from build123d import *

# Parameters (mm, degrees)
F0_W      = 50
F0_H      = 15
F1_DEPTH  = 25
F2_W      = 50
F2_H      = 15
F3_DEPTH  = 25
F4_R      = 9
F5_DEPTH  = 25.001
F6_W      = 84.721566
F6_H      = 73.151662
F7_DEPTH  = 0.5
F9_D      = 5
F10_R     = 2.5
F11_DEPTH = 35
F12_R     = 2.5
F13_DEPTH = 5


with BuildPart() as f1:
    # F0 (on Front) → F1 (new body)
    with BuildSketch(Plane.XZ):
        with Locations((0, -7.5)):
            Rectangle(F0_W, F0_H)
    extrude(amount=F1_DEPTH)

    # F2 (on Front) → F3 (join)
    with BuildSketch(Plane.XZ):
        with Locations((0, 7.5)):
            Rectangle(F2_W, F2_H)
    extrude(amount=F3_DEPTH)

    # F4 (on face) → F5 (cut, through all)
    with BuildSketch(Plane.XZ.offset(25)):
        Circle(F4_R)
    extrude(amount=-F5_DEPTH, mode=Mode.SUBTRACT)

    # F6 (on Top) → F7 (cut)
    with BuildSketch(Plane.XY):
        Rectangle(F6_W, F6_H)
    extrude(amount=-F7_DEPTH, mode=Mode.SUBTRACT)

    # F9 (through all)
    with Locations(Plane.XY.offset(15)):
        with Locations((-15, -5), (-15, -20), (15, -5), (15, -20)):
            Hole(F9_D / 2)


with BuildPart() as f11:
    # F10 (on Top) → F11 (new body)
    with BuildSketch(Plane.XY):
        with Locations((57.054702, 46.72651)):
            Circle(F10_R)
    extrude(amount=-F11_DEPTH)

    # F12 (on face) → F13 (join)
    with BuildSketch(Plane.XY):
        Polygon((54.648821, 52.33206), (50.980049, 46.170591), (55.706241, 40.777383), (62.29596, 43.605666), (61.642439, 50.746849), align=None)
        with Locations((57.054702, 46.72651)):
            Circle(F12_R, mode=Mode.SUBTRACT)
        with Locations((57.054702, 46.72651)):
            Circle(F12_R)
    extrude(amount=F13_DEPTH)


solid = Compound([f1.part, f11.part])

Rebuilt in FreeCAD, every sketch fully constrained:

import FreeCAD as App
import Part
import Sketcher


def add_polygon(sketch, points):
    """Adds a closed chain of lines whose ends are joined by coincident constraints."""
    first, n = sketch.GeometryCount, len(points)
    for a, b in zip(points, points[1:] + points[:1]):
        sketch.addGeometry(Part.LineSegment(App.Vector(*a, 0), App.Vector(*b, 0)), False)
    for i in range(n):
        sketch.addConstraint(Sketcher.Constraint("Coincident", first + i, 2, first + (i + 1) % n, 1))

doc = App.newDocument("Part")
body = doc.addObject("PartDesign::Body", "Body")
body.AllowCompound = True

sketch1 = body.newObject("Sketcher::SketchObject", "Sketch")
sketch1.AttachmentSupport = (doc.getObject("XZ_Plane"), [""])
sketch1.MapMode = "FlatFace"
add_polygon(sketch1, [(-25, 0), (-25, -15), (25, -15), (25, 0)])
sketch1.addConstraint([
    Sketcher.Constraint("Vertical", 0),
    Sketcher.Constraint("Horizontal", 1),
    Sketcher.Constraint("Vertical", 2),
    Sketcher.Constraint("Horizontal", 3),
    Sketcher.Constraint("Symmetric", 2, 2, 3, 2, -1, 1),
    Sketcher.Constraint("DistanceX", 1, 1, 1, 2, 50.0),
    Sketcher.Constraint("DistanceY", 0, 2, 0, 1, 15.0),
])
pad1 = body.newObject("PartDesign::Pad", "Pad")
pad1.Profile = sketch1
pad1.Length = 25

sketch2 = body.newObject("Sketcher::SketchObject", "Sketch001")
sketch2.AttachmentSupport = (doc.getObject("XZ_Plane"), [""])
sketch2.MapMode = "FlatFace"
add_polygon(sketch2, [(-25, 15), (-25, 0), (25, 0), (25, 15)])
sketch2.addConstraint([
    Sketcher.Constraint("Vertical", 0),
    Sketcher.Constraint("Horizontal", 1),
    Sketcher.Constraint("Vertical", 2),
    Sketcher.Constraint("Horizontal", 3),
    Sketcher.Constraint("Symmetric", 0, 2, 1, 2, -1, 1),
    Sketcher.Constraint("DistanceX", 1, 1, 1, 2, 50.0),
    Sketcher.Constraint("DistanceY", 0, 2, 0, 1, 15.0),
])
pad2 = body.newObject("PartDesign::Pad", "Pad001")
pad2.Profile = sketch2
pad2.Length = 25

sketch3 = body.newObject("Sketcher::SketchObject", "Sketch002")
sketch3.AttachmentSupport = (doc.getObject("XZ_Plane"), [""])
sketch3.MapMode = "FlatFace"
sketch3.AttachmentOffset = App.Placement(App.Vector(0, 0, 25), App.Rotation())
sketch3.addGeometry(Part.Circle(App.Vector(0, 0, 0), App.Vector(0, 0, 1), 9), False)
sketch3.addConstraint([
    Sketcher.Constraint("Coincident", 0, 3, -1, 1),
    Sketcher.Constraint("Diameter", 0, 18.0),
])
pocket1 = body.newObject("PartDesign::Pocket", "Pocket")
pocket1.Profile = sketch3
pocket1.Type = "ThroughAll"

sketch4 = body.newObject("Sketcher::SketchObject", "Sketch003")
sketch4.AttachmentSupport = (doc.getObject("XY_Plane"), [""])
sketch4.MapMode = "FlatFace"
add_polygon(sketch4, [(-42, 37), (-42, -37), (42, -37), (42, 37)])
sketch4.addConstraint([
    Sketcher.Constraint("Vertical", 0),
    Sketcher.Constraint("Horizontal", 1),
    Sketcher.Constraint("Vertical", 2),
    Sketcher.Constraint("Horizontal", 3),
    Sketcher.Constraint("Symmetric", 0, 2, 2, 2, -1, 1),
    Sketcher.Constraint("DistanceY", 0, 2, 0, 1, 73.151662),
    Sketcher.Constraint("DistanceX", 1, 1, 1, 2, 84.721566),
])
pocket2 = body.newObject("PartDesign::Pocket", "Pocket001")
pocket2.Profile = sketch4
pocket2.Length = 0.5

sketch5 = body.newObject("Sketcher::SketchObject", "Sketch004")
sketch5.AttachmentSupport = (doc.getObject("XY_Plane"), [""])
sketch5.MapMode = "FlatFace"
sketch5.AttachmentOffset = App.Placement(App.Vector(0, 0, 15), App.Rotation())
sketch5.addGeometry([
    Part.Circle(App.Vector(-15, -5, 0), App.Vector(0, 0, 1), 2.5),
    Part.Circle(App.Vector(-15, -20, 0), App.Vector(0, 0, 1), 2.5),
    Part.Circle(App.Vector(15, -5, 0), App.Vector(0, 0, 1), 2.5),
    Part.Circle(App.Vector(15, -20, 0), App.Vector(0, 0, 1), 2.5),
], False)
sketch5.addConstraint([
    Sketcher.Constraint("Equal", 0, 1),
    Sketcher.Constraint("Equal", 1, 2),
    Sketcher.Constraint("Equal", 2, 3),
    Sketcher.Constraint("Symmetric", 0, 3, 2, 3, -2),
    Sketcher.Constraint("Symmetric", 1, 3, 3, 3, -2),
    Sketcher.Constraint("Vertical", 0, 3, 1, 3),
    Sketcher.Constraint("Diameter", 0, 5.0),
    Sketcher.Constraint("DistanceX", 0, 3, -1, 1, 15.0),
    Sketcher.Constraint("DistanceY", 0, 3, -1, 1, 5.0),
    Sketcher.Constraint("DistanceY", 1, 3, -1, 1, 20.0),
])
doc.recompute()
hole = body.newObject("PartDesign::Hole", "Hole")
hole.Profile = sketch5
hole.ThreadType = "None"
hole.Diameter = 5
hole.DepthType = "ThroughAll"
body2 = doc.addObject("PartDesign::Body", "Body001")

sketch6 = body2.newObject("Sketcher::SketchObject", "Sketch005")
sketch6.AttachmentSupport = (doc.getObject("XY_Plane001"), [""])
sketch6.MapMode = "FlatFace"
sketch6.addGeometry(Part.Circle(App.Vector(57.1, 46.7, 0), App.Vector(0, 0, 1), 2.5), False)
sketch6.addConstraint([
    Sketcher.Constraint("Diameter", 0, 5.0),
    Sketcher.Constraint("DistanceY", -1, 1, 0, 3, 46.72651),
    Sketcher.Constraint("DistanceX", -1, 1, 0, 3, 57.054702),
])
pad3 = body2.newObject("PartDesign::Pad", "Pad002")
pad3.Profile = sketch6
pad3.Length = 35
pad3.Reversed = True

sketch7 = body2.newObject("Sketcher::SketchObject", "Sketch006")
sketch7.AttachmentSupport = (doc.getObject("XY_Plane001"), [""])
sketch7.MapMode = "FlatFace"
add_polygon(sketch7, [(55, 52), (51, 46), (56, 41), (62, 44), (62, 51)])
sketch7.addConstraint([
    Sketcher.Constraint("Equal", 0, 1),
    Sketcher.Constraint("Equal", 1, 2),
    Sketcher.Constraint("Equal", 2, 3),
    Sketcher.Constraint("Equal", 3, 4),
    Sketcher.Constraint("DistanceX", 1, 2, 3, 2, 5.936198),
    Sketcher.Constraint("DistanceX", -1, 1, 0, 2, 50.980049),
    Sketcher.Constraint("DistanceY", -1, 1, 0, 2, 46.170591),
    Sketcher.Constraint("DistanceX", -1, 1, 1, 2, 55.706241),
    Sketcher.Constraint("DistanceX", -1, 1, 2, 2, 62.29596),
    Sketcher.Constraint("DistanceY", -1, 1, 3, 2, 50.746849),
])
pad4 = body2.newObject("PartDesign::Pad", "Pad003")
pad4.Profile = sketch7
pad4.Length = 5

doc.recompute()
